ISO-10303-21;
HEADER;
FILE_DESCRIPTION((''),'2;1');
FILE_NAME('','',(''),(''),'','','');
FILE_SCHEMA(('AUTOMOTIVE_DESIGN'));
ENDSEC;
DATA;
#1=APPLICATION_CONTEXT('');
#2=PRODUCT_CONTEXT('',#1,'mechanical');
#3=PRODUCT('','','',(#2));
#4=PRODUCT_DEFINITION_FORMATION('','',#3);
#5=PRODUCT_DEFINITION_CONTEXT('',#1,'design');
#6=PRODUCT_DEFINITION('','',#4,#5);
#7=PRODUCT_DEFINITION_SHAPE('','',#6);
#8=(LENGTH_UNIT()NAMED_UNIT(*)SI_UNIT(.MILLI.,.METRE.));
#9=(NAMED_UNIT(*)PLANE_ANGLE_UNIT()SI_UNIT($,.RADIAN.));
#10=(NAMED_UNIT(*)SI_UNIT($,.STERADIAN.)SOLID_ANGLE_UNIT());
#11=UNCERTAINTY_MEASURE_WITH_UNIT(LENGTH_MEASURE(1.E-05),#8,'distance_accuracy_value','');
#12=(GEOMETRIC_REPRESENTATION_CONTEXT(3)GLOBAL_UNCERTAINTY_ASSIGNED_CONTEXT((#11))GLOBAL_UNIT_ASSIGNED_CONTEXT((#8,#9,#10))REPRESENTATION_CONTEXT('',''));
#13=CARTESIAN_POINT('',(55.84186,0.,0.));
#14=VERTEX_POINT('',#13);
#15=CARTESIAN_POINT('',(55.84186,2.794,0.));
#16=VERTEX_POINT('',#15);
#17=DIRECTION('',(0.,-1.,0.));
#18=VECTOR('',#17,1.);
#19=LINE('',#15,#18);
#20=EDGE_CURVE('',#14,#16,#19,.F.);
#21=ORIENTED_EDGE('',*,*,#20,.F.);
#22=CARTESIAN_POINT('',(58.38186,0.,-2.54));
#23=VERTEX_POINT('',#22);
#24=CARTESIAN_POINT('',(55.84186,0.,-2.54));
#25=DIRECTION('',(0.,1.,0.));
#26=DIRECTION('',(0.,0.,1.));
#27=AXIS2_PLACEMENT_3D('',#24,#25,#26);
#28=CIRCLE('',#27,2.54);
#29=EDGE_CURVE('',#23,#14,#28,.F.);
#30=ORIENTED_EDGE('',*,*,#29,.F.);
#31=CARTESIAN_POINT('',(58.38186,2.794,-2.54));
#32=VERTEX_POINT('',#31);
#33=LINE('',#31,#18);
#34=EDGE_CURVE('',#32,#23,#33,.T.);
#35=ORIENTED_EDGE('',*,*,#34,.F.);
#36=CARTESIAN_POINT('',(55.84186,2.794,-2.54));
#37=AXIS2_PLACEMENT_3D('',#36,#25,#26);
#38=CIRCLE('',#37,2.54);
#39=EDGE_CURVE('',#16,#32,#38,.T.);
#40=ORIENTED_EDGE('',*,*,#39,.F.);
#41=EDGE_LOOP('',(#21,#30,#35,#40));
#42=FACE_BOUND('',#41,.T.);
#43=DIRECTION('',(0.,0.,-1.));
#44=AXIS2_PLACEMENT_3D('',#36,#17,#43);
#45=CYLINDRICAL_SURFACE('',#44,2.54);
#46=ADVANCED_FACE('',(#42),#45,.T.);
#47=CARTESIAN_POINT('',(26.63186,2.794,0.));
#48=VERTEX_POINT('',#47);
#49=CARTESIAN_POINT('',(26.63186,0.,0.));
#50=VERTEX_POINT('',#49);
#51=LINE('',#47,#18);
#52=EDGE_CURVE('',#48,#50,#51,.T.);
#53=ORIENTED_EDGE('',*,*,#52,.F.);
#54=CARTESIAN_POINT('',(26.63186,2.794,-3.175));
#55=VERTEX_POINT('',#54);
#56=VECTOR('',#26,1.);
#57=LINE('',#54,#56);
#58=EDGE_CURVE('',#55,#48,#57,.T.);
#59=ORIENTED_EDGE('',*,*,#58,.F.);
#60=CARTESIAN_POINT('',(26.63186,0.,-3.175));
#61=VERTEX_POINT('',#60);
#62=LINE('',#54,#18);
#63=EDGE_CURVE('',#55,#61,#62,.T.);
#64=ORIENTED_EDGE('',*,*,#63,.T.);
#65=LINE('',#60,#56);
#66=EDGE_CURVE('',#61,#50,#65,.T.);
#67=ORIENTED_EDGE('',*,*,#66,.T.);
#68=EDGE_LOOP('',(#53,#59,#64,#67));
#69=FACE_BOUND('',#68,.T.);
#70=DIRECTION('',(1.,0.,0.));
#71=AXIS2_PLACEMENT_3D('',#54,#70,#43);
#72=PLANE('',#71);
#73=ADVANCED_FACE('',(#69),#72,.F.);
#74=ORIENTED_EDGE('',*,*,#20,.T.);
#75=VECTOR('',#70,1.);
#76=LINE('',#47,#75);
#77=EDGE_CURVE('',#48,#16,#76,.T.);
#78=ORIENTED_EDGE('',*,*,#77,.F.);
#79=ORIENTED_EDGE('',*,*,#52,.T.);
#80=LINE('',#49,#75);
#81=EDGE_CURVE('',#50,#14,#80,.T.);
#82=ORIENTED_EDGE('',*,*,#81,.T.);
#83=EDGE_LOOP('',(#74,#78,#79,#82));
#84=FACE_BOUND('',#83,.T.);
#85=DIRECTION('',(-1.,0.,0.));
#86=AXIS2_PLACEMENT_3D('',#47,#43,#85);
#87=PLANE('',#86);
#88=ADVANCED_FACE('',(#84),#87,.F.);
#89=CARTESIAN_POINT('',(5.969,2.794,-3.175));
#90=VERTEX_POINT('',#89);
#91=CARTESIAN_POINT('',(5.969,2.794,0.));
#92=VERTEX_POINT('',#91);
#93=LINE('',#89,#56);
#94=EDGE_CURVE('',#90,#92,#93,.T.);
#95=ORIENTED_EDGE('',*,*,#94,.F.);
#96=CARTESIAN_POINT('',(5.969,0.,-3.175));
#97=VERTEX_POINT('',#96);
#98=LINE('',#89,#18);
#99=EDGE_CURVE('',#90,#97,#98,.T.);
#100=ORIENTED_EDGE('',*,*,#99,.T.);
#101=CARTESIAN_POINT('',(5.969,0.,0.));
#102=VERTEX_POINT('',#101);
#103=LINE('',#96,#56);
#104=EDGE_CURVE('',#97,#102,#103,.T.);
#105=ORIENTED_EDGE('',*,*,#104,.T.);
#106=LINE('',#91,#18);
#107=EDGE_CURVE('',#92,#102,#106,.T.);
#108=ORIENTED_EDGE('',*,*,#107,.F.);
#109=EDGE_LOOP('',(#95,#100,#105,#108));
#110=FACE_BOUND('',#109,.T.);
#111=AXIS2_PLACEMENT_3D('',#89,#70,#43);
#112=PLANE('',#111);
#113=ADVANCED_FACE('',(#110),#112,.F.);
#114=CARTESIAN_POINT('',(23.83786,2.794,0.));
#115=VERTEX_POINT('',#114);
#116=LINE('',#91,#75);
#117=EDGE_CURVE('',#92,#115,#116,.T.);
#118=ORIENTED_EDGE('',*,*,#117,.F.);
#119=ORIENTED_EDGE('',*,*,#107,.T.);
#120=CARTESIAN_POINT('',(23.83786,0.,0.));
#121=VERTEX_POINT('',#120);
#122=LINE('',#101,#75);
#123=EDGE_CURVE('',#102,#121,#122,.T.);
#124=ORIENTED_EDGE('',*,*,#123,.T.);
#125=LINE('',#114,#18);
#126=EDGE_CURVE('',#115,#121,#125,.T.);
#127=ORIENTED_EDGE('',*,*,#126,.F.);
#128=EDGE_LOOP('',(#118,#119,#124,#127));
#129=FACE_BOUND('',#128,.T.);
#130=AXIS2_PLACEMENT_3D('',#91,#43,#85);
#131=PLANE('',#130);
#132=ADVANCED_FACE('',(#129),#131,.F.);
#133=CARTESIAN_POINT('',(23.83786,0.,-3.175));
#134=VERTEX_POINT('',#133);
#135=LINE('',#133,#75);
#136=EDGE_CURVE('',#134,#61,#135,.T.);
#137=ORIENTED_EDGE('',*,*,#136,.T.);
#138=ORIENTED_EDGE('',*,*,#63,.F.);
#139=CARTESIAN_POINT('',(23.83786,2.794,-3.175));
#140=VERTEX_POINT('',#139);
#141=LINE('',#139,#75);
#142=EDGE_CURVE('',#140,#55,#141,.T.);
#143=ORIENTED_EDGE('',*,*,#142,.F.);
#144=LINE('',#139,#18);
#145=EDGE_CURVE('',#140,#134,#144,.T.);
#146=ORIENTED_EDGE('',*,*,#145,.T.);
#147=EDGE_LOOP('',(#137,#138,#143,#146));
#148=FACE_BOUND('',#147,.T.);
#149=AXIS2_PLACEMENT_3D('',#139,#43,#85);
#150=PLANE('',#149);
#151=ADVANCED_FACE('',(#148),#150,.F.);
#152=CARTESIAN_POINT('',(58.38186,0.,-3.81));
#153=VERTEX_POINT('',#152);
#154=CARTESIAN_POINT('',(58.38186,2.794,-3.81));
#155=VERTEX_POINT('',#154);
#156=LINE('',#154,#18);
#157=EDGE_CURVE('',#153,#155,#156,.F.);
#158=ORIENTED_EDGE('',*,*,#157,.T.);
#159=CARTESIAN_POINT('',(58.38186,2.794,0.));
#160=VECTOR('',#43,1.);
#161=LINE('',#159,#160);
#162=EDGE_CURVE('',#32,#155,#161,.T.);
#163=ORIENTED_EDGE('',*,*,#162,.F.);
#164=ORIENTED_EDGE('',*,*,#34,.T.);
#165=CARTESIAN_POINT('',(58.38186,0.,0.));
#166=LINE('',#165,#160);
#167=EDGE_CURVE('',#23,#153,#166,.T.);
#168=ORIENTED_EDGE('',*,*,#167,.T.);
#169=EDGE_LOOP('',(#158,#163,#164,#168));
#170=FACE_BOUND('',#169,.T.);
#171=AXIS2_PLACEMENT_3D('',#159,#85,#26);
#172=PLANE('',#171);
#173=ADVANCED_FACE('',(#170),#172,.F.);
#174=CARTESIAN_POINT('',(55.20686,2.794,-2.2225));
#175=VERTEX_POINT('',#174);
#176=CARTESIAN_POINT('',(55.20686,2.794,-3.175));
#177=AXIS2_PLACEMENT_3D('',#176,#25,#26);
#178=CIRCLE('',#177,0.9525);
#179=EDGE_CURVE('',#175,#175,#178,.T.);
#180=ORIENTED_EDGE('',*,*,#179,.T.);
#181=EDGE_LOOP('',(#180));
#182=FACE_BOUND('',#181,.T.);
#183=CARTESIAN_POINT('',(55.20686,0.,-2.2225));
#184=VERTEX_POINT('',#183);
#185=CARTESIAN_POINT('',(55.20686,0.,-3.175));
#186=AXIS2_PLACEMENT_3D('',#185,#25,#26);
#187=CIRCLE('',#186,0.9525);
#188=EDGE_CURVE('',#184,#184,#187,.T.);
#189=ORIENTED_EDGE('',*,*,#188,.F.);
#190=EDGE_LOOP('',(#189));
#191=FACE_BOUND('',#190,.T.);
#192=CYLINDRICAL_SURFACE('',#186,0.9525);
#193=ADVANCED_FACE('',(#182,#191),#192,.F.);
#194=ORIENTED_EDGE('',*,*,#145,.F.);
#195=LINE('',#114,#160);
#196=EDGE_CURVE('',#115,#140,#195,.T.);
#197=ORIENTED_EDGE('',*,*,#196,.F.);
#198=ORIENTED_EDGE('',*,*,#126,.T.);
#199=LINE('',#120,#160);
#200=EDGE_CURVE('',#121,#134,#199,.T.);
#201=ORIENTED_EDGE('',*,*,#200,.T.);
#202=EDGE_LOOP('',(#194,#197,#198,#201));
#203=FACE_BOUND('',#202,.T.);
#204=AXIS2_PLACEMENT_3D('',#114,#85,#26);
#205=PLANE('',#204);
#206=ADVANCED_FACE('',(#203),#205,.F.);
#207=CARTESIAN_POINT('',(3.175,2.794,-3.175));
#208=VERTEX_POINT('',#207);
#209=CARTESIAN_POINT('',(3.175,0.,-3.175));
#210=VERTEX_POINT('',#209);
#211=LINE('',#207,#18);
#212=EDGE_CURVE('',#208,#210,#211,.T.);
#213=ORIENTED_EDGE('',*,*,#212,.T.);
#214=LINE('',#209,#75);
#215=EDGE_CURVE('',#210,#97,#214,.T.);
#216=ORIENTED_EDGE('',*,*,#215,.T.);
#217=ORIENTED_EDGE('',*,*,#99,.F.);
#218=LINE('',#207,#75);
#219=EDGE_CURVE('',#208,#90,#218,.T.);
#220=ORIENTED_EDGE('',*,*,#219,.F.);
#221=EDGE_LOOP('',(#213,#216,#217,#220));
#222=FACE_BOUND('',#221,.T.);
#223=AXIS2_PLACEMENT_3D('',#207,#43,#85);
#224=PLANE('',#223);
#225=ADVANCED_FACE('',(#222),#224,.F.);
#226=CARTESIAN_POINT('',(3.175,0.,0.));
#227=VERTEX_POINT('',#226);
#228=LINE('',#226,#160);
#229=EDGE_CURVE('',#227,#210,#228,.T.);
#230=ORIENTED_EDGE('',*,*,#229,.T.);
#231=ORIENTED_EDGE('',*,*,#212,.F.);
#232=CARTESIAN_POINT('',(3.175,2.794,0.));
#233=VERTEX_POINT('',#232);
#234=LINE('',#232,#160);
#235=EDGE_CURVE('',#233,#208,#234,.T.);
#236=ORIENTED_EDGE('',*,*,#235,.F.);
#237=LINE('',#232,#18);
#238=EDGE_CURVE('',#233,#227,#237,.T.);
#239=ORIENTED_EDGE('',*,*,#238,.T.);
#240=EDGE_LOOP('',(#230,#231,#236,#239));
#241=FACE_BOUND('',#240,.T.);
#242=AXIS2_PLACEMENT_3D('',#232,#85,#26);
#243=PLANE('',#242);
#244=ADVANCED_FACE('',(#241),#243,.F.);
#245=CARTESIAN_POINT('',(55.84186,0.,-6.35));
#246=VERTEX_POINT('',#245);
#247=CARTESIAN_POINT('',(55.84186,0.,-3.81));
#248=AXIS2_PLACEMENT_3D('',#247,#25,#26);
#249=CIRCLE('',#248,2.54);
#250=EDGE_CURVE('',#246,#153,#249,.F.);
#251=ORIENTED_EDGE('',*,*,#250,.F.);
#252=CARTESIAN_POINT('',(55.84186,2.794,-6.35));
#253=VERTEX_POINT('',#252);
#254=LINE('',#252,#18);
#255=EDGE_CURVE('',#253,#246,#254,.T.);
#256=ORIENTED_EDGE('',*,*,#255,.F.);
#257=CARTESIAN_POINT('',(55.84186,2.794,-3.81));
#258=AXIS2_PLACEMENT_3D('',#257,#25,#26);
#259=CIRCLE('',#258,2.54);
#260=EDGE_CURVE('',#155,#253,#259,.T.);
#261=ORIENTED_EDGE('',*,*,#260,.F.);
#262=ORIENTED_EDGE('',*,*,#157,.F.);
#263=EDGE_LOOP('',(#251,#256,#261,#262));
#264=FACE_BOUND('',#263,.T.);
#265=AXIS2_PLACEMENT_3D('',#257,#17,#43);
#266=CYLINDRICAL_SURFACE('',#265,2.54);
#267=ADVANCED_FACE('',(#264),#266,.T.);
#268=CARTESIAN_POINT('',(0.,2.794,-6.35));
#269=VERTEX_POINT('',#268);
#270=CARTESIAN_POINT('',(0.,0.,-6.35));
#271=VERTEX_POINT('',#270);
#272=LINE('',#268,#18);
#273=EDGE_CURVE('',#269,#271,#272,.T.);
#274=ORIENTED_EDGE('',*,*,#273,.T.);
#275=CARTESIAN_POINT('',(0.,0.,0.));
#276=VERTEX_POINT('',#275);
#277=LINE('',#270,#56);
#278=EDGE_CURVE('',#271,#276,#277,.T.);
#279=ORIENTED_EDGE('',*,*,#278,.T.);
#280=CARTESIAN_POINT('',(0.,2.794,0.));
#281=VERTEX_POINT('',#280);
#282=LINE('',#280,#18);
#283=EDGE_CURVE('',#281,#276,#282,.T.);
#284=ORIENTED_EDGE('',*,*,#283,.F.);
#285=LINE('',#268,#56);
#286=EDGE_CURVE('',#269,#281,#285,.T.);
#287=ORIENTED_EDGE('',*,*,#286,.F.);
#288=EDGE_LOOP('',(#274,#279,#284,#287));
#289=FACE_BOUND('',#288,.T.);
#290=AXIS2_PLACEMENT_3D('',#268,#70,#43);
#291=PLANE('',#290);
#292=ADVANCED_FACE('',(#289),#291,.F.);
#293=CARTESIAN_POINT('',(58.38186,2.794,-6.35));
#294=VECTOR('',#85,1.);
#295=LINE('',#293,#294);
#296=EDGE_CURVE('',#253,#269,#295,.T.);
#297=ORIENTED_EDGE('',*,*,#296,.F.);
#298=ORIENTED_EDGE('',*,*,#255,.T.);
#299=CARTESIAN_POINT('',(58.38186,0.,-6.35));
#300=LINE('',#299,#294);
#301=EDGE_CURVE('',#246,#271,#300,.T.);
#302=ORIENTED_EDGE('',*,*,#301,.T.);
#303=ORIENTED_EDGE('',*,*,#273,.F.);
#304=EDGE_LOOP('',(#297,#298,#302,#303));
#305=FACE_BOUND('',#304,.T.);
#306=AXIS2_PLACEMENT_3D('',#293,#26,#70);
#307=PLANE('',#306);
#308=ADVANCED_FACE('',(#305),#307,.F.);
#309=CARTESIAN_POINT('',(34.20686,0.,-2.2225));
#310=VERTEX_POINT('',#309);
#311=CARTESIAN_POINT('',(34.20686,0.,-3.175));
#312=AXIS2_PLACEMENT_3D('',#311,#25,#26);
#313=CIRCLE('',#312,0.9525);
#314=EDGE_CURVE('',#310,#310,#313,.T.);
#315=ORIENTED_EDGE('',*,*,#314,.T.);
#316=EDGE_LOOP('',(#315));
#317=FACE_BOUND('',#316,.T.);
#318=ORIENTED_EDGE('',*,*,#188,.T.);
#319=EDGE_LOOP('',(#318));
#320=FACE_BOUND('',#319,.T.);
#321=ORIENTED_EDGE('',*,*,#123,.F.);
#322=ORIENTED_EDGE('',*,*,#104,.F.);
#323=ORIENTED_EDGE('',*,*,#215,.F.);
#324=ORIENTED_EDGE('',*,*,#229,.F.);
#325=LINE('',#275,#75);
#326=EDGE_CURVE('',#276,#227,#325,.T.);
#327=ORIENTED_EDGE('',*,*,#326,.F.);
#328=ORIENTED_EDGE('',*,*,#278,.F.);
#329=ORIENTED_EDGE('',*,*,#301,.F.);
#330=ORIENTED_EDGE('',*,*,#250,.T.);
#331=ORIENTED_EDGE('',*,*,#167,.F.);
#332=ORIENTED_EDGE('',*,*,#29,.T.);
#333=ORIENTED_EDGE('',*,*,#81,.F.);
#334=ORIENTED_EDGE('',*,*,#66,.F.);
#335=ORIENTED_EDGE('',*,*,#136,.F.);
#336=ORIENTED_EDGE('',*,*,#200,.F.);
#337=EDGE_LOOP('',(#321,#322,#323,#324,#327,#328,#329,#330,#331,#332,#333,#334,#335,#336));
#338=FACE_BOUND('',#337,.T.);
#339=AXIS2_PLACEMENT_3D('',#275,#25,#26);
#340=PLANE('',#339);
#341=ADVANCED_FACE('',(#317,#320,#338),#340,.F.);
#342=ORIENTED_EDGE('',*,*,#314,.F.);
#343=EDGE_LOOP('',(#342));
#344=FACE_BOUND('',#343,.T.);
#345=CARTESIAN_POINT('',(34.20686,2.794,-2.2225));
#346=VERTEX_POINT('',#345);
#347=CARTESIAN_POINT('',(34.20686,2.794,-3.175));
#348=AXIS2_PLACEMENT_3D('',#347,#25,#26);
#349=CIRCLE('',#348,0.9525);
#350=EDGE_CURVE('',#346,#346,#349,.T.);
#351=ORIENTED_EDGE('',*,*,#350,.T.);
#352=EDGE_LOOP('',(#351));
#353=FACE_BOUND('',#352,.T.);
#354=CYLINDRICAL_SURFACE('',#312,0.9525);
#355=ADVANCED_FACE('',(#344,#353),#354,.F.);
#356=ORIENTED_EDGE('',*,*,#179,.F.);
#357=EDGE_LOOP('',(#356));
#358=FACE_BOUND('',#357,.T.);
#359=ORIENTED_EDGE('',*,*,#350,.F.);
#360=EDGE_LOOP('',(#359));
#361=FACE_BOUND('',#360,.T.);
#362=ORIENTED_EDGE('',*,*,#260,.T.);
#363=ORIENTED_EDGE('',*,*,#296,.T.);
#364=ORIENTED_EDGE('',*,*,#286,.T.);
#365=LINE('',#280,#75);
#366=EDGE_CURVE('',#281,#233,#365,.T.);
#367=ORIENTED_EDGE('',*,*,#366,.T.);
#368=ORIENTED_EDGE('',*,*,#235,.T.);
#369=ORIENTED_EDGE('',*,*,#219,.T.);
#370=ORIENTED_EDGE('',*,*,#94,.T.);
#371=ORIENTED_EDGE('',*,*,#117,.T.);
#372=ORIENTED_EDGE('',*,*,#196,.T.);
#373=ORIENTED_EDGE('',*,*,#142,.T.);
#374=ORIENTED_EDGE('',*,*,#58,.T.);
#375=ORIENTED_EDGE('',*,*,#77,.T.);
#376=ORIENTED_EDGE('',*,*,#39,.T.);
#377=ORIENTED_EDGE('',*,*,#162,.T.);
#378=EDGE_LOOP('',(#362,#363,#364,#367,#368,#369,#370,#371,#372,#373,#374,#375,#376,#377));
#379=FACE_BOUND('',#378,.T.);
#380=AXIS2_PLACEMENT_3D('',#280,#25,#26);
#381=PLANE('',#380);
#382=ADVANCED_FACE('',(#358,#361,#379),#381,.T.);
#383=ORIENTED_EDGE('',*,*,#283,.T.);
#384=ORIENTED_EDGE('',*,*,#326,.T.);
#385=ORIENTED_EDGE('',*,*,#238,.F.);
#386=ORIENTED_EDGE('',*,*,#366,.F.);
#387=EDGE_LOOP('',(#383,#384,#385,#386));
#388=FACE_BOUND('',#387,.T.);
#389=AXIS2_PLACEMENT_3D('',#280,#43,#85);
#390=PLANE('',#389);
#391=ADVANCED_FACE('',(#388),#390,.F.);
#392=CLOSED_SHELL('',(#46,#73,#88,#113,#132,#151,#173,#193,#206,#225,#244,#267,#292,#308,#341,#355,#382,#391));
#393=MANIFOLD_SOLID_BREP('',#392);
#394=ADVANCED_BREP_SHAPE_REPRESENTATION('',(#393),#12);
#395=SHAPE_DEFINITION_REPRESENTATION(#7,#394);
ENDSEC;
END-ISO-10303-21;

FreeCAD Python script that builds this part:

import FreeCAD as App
import Part
import Sketcher
from FreeCAD import Vector
Q = App.Units.Quantity


def edges_at(feature, points):
    """Names of the edges that pass closest to the given points."""
    edges = feature.Shape.Edges
    near = lambda p: min(range(len(edges)), key=lambda i: edges[i].distToShape(Part.Vertex(*p))[0])
    return sorted({f"Edge{near(p) + 1}" for p in points})


def add_polygon(sketch, points):
    """Adds a closed chain of lines whose ends are joined by coincident constraints."""
    first, n = sketch.GeometryCount, len(points)
    for a, b in zip(points, points[1:] + points[:1]):
        sketch.addGeometry(Part.LineSegment(App.Vector(*a, 0), App.Vector(*b, 0)), False)
    for i in range(n):
        sketch.addConstraint(Sketcher.Constraint("Coincident", first + i, 2, first + (i + 1) % n, 1))

doc = App.newDocument("Part")
body = doc.addObject("PartDesign::Body", "Body")

# Sketch on XZ plane
sketch1 = body.newObject("Sketcher::SketchObject", "Sketch")
sketch1.AttachmentSupport = (doc.getObject("XZ_Plane"), [""])
sketch1.MapMode = "FlatFace"
add_polygon(sketch1, [(0, 0), (3.2, 0), (3.2, -3.2), (6, -3.2), (6, 0), (23.8, 0), (23.8, -3.2), (26.6, -3.2), (26.6, 0), (58.4, 0), (58.4, -6.3), (0, -6.3)])  # lines 0-11
sketch1.addConstraint(Sketcher.Constraint("Horizontal", 0))
sketch1.addConstraint(Sketcher.Constraint("Vertical", 1))
sketch1.addConstraint(Sketcher.Constraint("Horizontal", 2))
sketch1.addConstraint(Sketcher.Constraint("Vertical", 3))
sketch1.addConstraint(Sketcher.Constraint("Horizontal", 4))
sketch1.addConstraint(Sketcher.Constraint("Vertical", 5))
sketch1.addConstraint(Sketcher.Constraint("Horizontal", 6))
sketch1.addConstraint(Sketcher.Constraint("Vertical", 7))
sketch1.addConstraint(Sketcher.Constraint("Horizontal", 8))
sketch1.addConstraint(Sketcher.Constraint("Vertical", 9))
sketch1.addConstraint(Sketcher.Constraint("Horizontal", 10))
sketch1.addConstraint(Sketcher.Constraint("Vertical", 11))
sketch1.addConstraint(Sketcher.Constraint("Coincident", 11, 2, -1, 1))
sketch1.addConstraint(Sketcher.Constraint("PointOnObject", 3, 2, -1))
sketch1.addConstraint(Sketcher.Constraint("PointOnObject", 7, 2, -1))
sketch1.addConstraint(Sketcher.Constraint("Horizontal", 2, 2, 5, 2))
sketch1.addConstraint(Sketcher.Constraint("Equal", 2, 6))
sketch1.addConstraint(Sketcher.Constraint("Equal", 0, 1))
sketch1.addConstraint(Sketcher.Constraint("DistanceX", 2, 1, 2, 2, Q("0.11 in")))
sketch1.addConstraint(Sketcher.Constraint("DistanceX", 8, 1, 8, 2, Q("1.25 in")))
sketch1.addConstraint(Sketcher.Constraint("DistanceY", 9, 2, 9, 1, Q("0.25 in")))
sketch1.addConstraint(Sketcher.Constraint("DistanceX", 0, 1, 0, 2, Q("0.125 in")))
sketch1.addConstraint(Sketcher.Constraint("DistanceX", 4, 1, 4, 2, 17.86886))
pad1 = body.newObject("PartDesign::Pad", "Pad")
pad1.Profile = sketch1
pad1.Length = Q("0.11 in")
pad1.Reversed = True

# Sketch on XZ plane
sketch2 = body.newObject("Sketcher::SketchObject", "Sketch001")
sketch2.AttachmentSupport = (doc.getObject("XZ_Plane"), [""])
sketch2.MapMode = "FlatFace"
sketch2.AttachmentOffset = App.Placement(Vector(0, 0, -0.11 * 25.4), App.Rotation())
sketch2.addGeometry(Part.Circle(Vector(55.2, -3.2, 0), Vector(0, 0, 1), 1), False)
sketch2.addGeometry(Part.Circle(Vector(34.2, -3.2, 0), Vector(0, 0, 1), 1), False)
sketch2.addConstraint(Sketcher.Constraint("Equal", 0, 1))
sketch2.addConstraint(Sketcher.Constraint("Horizontal", 0, 3, 1, 3))
sketch2.addConstraint(Sketcher.Constraint("Diameter", 0, Q("0.075 in")))
sketch2.addConstraint(Sketcher.Constraint("DistanceY", 0, 3, -1, 1, Q("0.125 in")))
sketch2.addConstraint(Sketcher.Constraint("DistanceX", 1, 3, 0, 3, 21.0))
sketch2.addConstraint(Sketcher.Constraint("DistanceX", -1, 1, 0, 3, 55.20686))
pocket1 = body.newObject("PartDesign::Pocket", "Pocket")
pocket1.Profile = sketch2
pocket1.Type = "ThroughAll"
pocket1.Reversed = True
doc.recompute()

fillet = body.newObject("PartDesign::Fillet", "Fillet")
fillet.Base = (pocket1, edges_at(pocket1, [(58.382, 1.397, -6.35), (58.382, 1.397, 0)]))
fillet.Radius = Q("0.1 in")

doc.recompute()
